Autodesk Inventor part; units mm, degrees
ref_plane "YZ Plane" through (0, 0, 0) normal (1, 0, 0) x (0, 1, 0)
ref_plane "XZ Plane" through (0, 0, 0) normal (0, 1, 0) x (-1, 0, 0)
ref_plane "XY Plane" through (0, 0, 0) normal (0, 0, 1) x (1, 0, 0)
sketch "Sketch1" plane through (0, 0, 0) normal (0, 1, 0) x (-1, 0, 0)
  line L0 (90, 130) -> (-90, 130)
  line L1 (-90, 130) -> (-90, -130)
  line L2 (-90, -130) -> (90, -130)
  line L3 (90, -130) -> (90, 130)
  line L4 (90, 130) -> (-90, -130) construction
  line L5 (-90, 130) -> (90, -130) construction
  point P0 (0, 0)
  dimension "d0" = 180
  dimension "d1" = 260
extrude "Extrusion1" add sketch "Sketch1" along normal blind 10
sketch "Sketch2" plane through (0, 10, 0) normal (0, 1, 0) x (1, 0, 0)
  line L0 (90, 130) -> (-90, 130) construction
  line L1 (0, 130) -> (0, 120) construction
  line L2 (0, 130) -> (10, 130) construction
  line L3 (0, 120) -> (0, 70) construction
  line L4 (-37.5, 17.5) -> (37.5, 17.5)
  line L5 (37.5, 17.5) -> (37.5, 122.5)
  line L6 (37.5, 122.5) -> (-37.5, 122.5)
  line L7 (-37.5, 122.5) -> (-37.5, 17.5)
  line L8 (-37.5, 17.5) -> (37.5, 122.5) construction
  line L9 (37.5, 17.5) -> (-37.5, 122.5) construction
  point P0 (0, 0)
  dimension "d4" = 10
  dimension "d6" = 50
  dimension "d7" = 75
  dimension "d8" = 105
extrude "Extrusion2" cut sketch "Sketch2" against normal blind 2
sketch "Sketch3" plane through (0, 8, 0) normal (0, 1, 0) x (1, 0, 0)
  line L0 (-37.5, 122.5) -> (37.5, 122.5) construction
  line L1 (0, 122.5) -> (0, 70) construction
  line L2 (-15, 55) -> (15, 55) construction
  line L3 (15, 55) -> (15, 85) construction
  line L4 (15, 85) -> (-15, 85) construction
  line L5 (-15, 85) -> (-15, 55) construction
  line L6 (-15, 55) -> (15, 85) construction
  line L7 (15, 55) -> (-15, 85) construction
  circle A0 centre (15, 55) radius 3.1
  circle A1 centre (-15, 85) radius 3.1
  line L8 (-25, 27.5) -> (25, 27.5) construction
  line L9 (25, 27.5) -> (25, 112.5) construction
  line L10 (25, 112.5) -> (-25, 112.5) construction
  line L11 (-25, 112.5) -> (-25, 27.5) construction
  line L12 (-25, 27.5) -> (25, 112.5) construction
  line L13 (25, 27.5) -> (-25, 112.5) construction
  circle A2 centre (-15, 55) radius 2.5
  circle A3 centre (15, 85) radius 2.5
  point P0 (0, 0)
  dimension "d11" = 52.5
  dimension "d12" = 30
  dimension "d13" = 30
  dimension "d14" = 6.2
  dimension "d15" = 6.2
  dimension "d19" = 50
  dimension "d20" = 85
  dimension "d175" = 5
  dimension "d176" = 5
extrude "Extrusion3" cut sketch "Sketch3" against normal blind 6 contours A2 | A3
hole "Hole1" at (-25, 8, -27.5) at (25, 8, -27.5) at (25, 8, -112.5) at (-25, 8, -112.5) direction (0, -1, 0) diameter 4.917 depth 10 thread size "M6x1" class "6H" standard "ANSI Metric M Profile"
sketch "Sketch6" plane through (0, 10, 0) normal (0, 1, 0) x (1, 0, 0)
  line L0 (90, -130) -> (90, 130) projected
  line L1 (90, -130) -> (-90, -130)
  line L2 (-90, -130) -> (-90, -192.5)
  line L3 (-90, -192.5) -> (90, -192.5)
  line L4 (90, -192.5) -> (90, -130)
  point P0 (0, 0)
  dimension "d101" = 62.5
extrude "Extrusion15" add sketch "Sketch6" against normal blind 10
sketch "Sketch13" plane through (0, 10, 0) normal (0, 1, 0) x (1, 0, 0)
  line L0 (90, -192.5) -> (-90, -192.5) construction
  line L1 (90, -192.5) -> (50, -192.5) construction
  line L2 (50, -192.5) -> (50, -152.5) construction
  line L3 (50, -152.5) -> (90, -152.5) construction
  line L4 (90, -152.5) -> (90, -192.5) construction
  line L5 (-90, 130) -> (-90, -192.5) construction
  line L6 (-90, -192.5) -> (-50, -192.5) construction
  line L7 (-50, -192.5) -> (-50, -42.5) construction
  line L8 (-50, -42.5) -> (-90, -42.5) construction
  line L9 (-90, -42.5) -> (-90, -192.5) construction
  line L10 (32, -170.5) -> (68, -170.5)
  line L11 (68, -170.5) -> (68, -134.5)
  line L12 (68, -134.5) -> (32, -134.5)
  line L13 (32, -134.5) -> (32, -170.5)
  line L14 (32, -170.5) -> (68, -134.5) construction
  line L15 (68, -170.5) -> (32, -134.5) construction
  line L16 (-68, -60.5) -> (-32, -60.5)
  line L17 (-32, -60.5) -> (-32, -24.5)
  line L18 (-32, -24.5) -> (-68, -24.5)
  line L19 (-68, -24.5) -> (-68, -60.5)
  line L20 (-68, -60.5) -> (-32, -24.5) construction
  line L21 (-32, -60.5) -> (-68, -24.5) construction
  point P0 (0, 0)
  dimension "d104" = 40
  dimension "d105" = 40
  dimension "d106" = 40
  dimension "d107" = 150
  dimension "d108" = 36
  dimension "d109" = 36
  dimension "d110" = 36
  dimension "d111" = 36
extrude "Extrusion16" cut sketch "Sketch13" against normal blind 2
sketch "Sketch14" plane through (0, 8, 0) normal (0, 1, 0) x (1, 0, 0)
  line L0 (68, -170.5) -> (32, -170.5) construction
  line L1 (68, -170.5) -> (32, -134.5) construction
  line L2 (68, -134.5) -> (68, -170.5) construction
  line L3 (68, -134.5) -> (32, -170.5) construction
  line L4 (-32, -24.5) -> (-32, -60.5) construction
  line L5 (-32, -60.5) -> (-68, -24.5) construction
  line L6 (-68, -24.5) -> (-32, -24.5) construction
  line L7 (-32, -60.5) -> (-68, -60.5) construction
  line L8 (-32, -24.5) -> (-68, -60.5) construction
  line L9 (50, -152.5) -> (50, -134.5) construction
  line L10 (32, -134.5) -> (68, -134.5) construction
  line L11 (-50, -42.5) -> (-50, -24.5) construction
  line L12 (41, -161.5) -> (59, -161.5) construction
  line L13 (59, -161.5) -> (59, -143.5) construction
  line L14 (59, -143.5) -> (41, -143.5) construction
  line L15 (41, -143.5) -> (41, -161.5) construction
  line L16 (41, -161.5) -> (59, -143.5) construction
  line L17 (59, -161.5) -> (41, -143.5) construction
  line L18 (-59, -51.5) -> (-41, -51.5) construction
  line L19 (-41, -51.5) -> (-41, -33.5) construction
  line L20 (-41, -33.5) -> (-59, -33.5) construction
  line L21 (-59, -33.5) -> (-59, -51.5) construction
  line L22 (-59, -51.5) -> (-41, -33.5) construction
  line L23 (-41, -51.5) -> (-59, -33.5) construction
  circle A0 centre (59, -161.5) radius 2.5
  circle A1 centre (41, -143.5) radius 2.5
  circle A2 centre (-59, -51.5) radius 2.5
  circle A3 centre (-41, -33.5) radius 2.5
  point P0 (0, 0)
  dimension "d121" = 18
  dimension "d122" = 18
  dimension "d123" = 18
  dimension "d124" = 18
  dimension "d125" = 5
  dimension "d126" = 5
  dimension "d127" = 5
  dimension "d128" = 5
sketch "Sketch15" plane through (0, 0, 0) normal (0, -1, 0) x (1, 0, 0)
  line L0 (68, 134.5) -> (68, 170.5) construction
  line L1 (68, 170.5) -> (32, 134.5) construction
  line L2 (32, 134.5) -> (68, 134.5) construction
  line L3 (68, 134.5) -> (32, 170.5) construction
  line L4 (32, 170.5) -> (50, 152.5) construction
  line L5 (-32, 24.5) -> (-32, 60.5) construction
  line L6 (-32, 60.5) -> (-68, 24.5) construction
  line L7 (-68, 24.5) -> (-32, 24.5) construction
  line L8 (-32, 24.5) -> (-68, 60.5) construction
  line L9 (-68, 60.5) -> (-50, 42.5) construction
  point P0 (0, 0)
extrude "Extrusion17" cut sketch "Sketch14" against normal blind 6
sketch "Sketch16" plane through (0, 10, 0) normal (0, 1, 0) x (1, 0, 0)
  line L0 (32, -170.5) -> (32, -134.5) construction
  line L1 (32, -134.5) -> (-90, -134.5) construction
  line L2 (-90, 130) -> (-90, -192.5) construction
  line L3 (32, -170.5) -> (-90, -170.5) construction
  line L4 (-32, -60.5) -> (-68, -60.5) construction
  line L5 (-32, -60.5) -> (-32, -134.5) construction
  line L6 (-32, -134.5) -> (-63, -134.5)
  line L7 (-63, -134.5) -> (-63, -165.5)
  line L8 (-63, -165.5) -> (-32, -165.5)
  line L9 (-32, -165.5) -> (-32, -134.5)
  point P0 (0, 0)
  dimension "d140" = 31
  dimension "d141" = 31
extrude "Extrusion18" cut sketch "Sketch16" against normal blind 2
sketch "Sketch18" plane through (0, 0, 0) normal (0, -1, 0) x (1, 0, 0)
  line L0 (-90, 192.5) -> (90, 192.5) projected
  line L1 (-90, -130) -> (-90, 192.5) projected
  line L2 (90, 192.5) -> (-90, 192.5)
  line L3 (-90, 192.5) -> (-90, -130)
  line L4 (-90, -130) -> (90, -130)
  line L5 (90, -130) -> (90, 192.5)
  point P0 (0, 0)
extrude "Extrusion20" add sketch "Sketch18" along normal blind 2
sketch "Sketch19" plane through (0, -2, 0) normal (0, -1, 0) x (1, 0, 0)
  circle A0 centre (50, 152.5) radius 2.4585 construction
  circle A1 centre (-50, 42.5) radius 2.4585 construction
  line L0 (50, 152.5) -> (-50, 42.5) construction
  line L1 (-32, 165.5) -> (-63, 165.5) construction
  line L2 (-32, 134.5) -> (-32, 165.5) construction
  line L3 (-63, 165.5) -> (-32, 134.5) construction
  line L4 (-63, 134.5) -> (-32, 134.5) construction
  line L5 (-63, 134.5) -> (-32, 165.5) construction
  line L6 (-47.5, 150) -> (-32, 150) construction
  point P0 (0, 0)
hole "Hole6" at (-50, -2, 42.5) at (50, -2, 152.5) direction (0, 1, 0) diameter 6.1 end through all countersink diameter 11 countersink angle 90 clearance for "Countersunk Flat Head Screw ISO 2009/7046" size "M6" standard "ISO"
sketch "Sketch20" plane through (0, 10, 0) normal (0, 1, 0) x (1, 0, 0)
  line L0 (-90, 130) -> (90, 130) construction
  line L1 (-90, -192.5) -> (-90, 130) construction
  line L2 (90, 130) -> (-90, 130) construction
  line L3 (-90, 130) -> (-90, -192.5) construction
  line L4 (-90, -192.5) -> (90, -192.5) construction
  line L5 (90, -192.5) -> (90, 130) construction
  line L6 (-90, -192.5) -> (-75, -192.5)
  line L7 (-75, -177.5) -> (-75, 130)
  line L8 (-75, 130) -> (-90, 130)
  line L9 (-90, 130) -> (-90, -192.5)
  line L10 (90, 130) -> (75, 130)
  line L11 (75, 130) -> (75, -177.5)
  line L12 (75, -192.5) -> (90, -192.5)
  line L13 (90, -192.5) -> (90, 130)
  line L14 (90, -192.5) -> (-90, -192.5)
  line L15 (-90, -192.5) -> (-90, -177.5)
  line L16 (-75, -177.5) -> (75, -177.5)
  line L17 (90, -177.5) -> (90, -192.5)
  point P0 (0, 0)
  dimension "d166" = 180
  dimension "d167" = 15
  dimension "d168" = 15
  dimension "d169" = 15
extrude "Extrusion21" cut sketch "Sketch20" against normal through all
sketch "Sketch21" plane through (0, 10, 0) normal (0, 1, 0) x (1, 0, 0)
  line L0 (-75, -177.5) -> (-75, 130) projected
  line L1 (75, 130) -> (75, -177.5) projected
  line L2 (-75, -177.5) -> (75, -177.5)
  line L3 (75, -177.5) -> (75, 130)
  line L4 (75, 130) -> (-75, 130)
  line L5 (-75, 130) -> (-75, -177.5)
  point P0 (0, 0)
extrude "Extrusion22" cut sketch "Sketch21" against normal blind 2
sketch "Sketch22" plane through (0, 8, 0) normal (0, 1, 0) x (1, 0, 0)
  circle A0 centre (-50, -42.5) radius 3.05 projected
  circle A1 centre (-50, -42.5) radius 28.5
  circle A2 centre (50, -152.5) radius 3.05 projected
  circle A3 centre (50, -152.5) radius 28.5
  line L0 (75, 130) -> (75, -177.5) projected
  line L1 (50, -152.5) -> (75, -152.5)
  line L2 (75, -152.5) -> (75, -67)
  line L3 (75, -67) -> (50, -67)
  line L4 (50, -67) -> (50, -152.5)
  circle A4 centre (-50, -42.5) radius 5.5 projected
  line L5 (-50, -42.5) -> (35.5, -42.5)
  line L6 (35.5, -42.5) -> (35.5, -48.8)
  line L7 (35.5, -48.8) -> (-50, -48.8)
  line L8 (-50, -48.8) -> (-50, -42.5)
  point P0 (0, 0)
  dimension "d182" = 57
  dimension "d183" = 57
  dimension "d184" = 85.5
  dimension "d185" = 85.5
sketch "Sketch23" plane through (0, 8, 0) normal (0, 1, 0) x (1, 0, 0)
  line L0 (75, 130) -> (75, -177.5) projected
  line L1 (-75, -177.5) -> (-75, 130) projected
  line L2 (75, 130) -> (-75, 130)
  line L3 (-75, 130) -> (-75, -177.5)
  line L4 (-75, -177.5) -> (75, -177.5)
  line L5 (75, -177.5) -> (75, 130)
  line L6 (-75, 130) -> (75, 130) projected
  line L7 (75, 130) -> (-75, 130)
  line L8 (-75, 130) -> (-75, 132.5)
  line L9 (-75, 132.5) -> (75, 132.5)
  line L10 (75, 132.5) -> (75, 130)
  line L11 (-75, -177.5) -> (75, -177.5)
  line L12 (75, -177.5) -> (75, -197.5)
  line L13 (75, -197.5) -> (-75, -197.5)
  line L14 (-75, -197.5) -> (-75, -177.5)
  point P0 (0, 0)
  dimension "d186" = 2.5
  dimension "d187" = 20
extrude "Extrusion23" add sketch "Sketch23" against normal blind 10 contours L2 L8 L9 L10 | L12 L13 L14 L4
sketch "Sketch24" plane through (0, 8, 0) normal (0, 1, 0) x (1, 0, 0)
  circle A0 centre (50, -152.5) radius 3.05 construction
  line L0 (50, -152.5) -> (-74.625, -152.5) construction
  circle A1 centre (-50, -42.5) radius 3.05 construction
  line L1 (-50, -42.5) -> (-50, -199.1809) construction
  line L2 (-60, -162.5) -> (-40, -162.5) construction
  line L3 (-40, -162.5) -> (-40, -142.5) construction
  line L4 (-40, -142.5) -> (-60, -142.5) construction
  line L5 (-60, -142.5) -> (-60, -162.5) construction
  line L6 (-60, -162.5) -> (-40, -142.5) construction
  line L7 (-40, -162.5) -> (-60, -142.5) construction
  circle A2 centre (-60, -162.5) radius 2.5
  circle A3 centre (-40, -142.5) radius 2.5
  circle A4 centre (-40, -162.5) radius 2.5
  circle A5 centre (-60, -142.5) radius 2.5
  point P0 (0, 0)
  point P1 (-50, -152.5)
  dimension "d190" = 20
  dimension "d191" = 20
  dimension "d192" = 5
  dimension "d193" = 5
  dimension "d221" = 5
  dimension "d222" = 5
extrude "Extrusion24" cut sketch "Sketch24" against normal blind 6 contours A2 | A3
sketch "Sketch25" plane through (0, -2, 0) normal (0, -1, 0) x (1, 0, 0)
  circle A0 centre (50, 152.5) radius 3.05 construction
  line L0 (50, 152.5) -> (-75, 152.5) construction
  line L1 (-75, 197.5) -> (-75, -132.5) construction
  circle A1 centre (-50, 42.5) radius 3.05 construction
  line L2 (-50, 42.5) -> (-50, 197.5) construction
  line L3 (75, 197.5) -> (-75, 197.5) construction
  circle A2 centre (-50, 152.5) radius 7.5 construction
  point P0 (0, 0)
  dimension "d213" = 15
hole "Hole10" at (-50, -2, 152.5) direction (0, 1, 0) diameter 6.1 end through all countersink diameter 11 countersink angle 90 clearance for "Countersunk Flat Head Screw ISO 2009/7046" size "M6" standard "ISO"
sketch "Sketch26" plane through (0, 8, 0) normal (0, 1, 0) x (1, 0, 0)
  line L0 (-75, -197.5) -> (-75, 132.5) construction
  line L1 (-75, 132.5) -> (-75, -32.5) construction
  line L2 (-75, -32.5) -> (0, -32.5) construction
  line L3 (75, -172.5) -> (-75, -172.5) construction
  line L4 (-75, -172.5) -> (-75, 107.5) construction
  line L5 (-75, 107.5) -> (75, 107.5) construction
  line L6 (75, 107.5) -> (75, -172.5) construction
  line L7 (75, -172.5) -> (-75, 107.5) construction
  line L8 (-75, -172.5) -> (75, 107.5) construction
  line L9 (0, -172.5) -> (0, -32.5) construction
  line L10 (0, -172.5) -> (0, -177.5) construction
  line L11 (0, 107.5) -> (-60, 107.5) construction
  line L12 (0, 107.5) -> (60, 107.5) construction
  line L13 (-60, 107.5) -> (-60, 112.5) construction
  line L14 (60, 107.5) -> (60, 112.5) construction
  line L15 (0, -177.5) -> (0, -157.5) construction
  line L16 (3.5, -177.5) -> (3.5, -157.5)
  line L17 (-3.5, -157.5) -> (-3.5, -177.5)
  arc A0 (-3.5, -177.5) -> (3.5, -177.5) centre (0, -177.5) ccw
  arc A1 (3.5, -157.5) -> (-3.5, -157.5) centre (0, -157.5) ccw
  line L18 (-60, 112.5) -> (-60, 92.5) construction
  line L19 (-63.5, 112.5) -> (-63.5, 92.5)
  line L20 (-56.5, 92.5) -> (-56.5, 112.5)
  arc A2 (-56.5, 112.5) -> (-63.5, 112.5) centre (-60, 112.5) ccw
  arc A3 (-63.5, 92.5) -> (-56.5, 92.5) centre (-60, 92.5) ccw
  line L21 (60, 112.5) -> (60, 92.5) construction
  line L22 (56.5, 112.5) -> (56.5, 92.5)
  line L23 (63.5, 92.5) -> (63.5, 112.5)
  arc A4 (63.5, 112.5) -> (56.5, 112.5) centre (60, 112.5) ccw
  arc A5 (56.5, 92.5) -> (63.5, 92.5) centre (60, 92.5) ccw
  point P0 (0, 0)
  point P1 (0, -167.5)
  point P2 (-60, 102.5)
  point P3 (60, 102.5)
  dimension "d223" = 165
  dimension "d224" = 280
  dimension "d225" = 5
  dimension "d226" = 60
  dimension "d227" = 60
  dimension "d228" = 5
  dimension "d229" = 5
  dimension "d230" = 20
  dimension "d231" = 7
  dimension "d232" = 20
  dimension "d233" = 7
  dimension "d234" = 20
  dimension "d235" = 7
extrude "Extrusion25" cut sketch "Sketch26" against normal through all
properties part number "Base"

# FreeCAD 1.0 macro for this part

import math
import FreeCAD as App
import Part
import Sketcher
Q = App.Units.Quantity

doc = App.newDocument("Part")
body = doc.addObject("PartDesign::Body", "Body")

sketch1 = body.newObject("Sketcher::SketchObject", "Sketch")
sketch1.AttachmentSupport = (doc.getObject("XZ_Plane"), [""])
sketch1.MapMode = "FlatFace"
sketch1.addGeometry([
    Part.LineSegment(App.Vector(-90, -130, 0), App.Vector(-90, 130, 0)),
    Part.LineSegment(App.Vector(-90, 130, 0), App.Vector(90, 130, 0)),
    Part.LineSegment(App.Vector(90, 130, 0), App.Vector(90, -130, 0)),
    Part.LineSegment(App.Vector(90, -130, 0), App.Vector(-90, -130, 0)),
], False)
sketch1.addConstraint([
    Sketcher.Constraint("Coincident", 0, 2, 1, 1),
    Sketcher.Constraint("Coincident", 1, 2, 2, 1),
    Sketcher.Constraint("Coincident", 2, 2, 3, 1),
    Sketcher.Constraint("Coincident", 3, 2, 0, 1),
    Sketcher.Constraint("Vertical", 0),
    Sketcher.Constraint("Horizontal", 1),
    Sketcher.Constraint("Vertical", 2),
    Sketcher.Constraint("Horizontal", 3),
    Sketcher.Constraint("Symmetric", 0, 2, 2, 2, -1, 1),
    Sketcher.Constraint("DistanceX", 1, 1, 1, 2, Q("180 mm")),
    Sketcher.Constraint("DistanceY", 0, 1, 0, 2, Q("260 mm")),
])
pad1 = body.newObject("PartDesign::Pad", "Pad")
pad1.Profile = sketch1
pad1.Length = 10
pad1.Reversed = True

sketch2 = body.newObject("Sketcher::SketchObject", "Sketch001")
sketch2.AttachmentSupport = (doc.getObject("XZ_Plane"), [""])
sketch2.MapMode = "FlatFace"
sketch2.AttachmentOffset = App.Placement(App.Vector(0, 0, -10), App.Rotation())
sketch2.addGeometry([
    Part.LineSegment(App.Vector(-37.5, -122.5, 0), App.Vector(-37.5, -17.5, 0)),
    Part.LineSegment(App.Vector(-37.5, -17.5, 0), App.Vector(37.5, -17.5, 0)),
    Part.LineSegment(App.Vector(37.5, -17.5, 0), App.Vector(37.5, -122.5, 0)),
    Part.LineSegment(App.Vector(37.5, -122.5, 0), App.Vector(-37.5, -122.5, 0)),
], False)
sketch2.addConstraint([
    Sketcher.Constraint("Coincident", 0, 2, 1, 1),
    Sketcher.Constraint("Coincident", 1, 2, 2, 1),
    Sketcher.Constraint("Coincident", 2, 2, 3, 1),
    Sketcher.Constraint("Coincident", 3, 2, 0, 1),
    Sketcher.Constraint("Vertical", 0),
    Sketcher.Constraint("Horizontal", 1),
    Sketcher.Constraint("Vertical", 2),
    Sketcher.Constraint("Horizontal", 3),
    Sketcher.Constraint("DistanceX", 1, 1, 1, 2, Q("75 mm")),
    Sketcher.Constraint("DistanceY", 0, 1, 0, 2, Q("105 mm")),
    Sketcher.Constraint("DistanceX", 0, 2, -1, 1, Q("37.5 mm")),
    Sketcher.Constraint("DistanceY", 0, 2, -1, 1, Q("17.5 mm")),
])
pocket1 = body.newObject("PartDesign::Pocket", "Pocket")
pocket1.Profile = sketch2
pocket1.Length = 2
pocket1.Reversed = True

sketch3 = body.newObject("Sketcher::SketchObject", "Sketch002")
sketch3.AttachmentSupport = (doc.getObject("XZ_Plane"), [""])
sketch3.MapMode = "FlatFace"
sketch3.AttachmentOffset = App.Placement(App.Vector(0, 0, -8), App.Rotation())
sketch3.addGeometry([
    Part.Circle(App.Vector(-15, -55, 0), App.Vector(0, 0, 1), 2.5),
    Part.Circle(App.Vector(15, -85, 0), App.Vector(0, 0, 1), 2.5),
], False)
sketch3.addConstraint([
    Sketcher.Constraint("Equal", 0, 1),
    Sketcher.Constraint("Diameter", 0, Q("5 mm")),
    Sketcher.Constraint("DistanceY", 1, 3, -1, 1, Q("85 mm")),
    Sketcher.Constraint("DistanceX", 0, 3, 1, 3, Q("30 mm")),
    Sketcher.Constraint("DistanceY", 1, 3, 0, 3, Q("30 mm")),
    Sketcher.Constraint("DistanceX", 0, 3, -1, 1, Q("15 mm")),
])
pocket2 = body.newObject("PartDesign::Pocket", "Pocket001")
pocket2.Profile = sketch3
pocket2.Length = 6
pocket2.Reversed = True

sketch4 = body.newObject("Sketcher::SketchObject", "Sketch003")
sketch4.AttachmentSupport = (doc.getObject("XZ_Plane"), [""])
sketch4.MapMode = "FlatFace"
sketch4.AttachmentOffset = App.Placement(App.Vector(0, 0, -8), App.Rotation())
sketch4.addGeometry([
    Part.Circle(App.Vector(-25, -27.5, 0), App.Vector(0, 0, 1), 2.4585),
    Part.Circle(App.Vector(25, -27.5, 0), App.Vector(0, 0, 1), 2.4585),
    Part.Circle(App.Vector(25, -112.5, 0), App.Vector(0, 0, 1), 2.4585),
    Part.Circle(App.Vector(-25, -112.5, 0), App.Vector(0, 0, 1), 2.4585),
], False)
sketch4.addConstraint([
    Sketcher.Constraint("Equal", 0, 1),
    Sketcher.Constraint("Equal", 1, 2),
    Sketcher.Constraint("Equal", 2, 3),
    Sketcher.Constraint("Symmetric", 0, 3, 1, 3, -2),
    Sketcher.Constraint("Symmetric", 2, 3, 3, 3, -2),
    Sketcher.Constraint("Vertical", 1, 3, 2, 3),
    Sketcher.Constraint("Diameter", 0, Q("4.917 mm")),
    Sketcher.Constraint("DistanceX", 0, 3, -1, 1, Q("25 mm")),
    Sketcher.Constraint("DistanceY", 2, 3, 1, 3, Q("85 mm")),
    Sketcher.Constraint("DistanceY", 0, 3, -1, 1, Q("27.5 mm")),
])
doc.recompute()
hole = body.newObject("PartDesign::Hole", "Hole")
hole.Profile = sketch4
hole.ThreadType = "None"
hole.Diameter = 4.917
hole.DepthType = "Dimension"
hole.Depth = 10
hole.DrillPoint = "Flat"
hole.Reversed = True

sketch5 = body.newObject("Sketcher::SketchObject", "Sketch004")
sketch5.AttachmentSupport = (doc.getObject("XZ_Plane"), [""])
sketch5.MapMode = "FlatFace"
sketch5.AttachmentOffset = App.Placement(App.Vector(0, 0, -10), App.Rotation())
sketch5.addGeometry([
    Part.LineSegment(App.Vector(90, 192.5, 0), App.Vector(90, 130, 0)),
    Part.LineSegment(App.Vector(90, 130, 0), App.Vector(-90, 130, 0)),
    Part.LineSegment(App.Vector(-90, 130, 0), App.Vector(-90, 192.5, 0)),
    Part.LineSegment(App.Vector(-90, 192.5, 0), App.Vector(90, 192.5, 0)),
], False)
sketch5.addConstraint([
    Sketcher.Constraint("Coincident", 0, 2, 1, 1),
    Sketcher.Constraint("Coincident", 1, 2, 2, 1),
    Sketcher.Constraint("Coincident", 2, 2, 3, 1),
    Sketcher.Constraint("Coincident", 3, 2, 0, 1),
    Sketcher.Constraint("Vertical", 0),
    Sketcher.Constraint("Horizontal", 1),
    Sketcher.Constraint("Vertical", 2),
    Sketcher.Constraint("Horizontal", 3),
    Sketcher.Constraint("DistanceY", 0, 2, 0, 1, Q("62.5 mm")),
    Sketcher.Constraint("DistanceX", 1, 2, 1, 1, Q("180 mm")),
    Sketcher.Constraint("DistanceX", -1, 1, 0, 2, Q("90 mm")),
    Sketcher.Constraint("DistanceY", -1, 1, 0, 2, Q("130 mm")),
])
pad2 = body.newObject("PartDesign::Pad", "Pad001")
pad2.Profile = sketch5
pad2.Length = 10

sketch6 = body.newObject("Sketcher::SketchObject", "Sketch005")
sketch6.AttachmentSupport = (doc.getObject("XZ_Plane"), [""])
sketch6.MapMode = "FlatFace"
sketch6.AttachmentOffset = App.Placement(App.Vector(0, 0, -10), App.Rotation())
sketch6.addGeometry([
    Part.LineSegment(App.Vector(32, 134.5, 0), App.Vector(32, 170.5, 0)),
    Part.LineSegment(App.Vector(32, 170.5, 0), App.Vector(68, 170.5, 0)),
    Part.LineSegment(App.Vector(68, 170.5, 0), App.Vector(68, 134.5, 0)),
    Part.LineSegment(App.Vector(68, 134.5, 0), App.Vector(32, 134.5, 0)),
    Part.LineSegment(App.Vector(-68, 24.5, 0), App.Vector(-68, 60.5, 0)),
    Part.LineSegment(App.Vector(-68, 60.5, 0), App.Vector(-32, 60.5, 0)),
    Part.LineSegment(App.Vector(-32, 60.5, 0), App.Vector(-32, 24.5, 0)),
    Part.LineSegment(App.Vector(-32, 24.5, 0), App.Vector(-68, 24.5, 0)),
], False)
sketch6.addConstraint([
    Sketcher.Constraint("Coincident", 0, 2, 1, 1),
    Sketcher.Constraint("Coincident", 1, 2, 2, 1),
    Sketcher.Constraint("Coincident", 2, 2, 3, 1),
    Sketcher.Constraint("Coincident", 3, 2, 0, 1),
    Sketcher.Constraint("Coincident", 4, 2, 5, 1),
    Sketcher.Constraint("Coincident", 5, 2, 6, 1),
    Sketcher.Constraint("Coincident", 6, 2, 7, 1),
    Sketcher.Constraint("Coincident", 7, 2, 4, 1),
    Sketcher.Constraint("Vertical", 0),
    Sketcher.Constraint("Horizontal", 1),
    Sketcher.Constraint("Vertical", 2),
    Sketcher.Constraint("Horizontal", 3),
    Sketcher.Constraint("Vertical", 4),
    Sketcher.Constraint("Horizontal", 5),
    Sketcher.Constraint("Vertical", 6),
    Sketcher.Constraint("Horizontal", 7),
    Sketcher.Constraint("Equal", 3, 5),
    Sketcher.Constraint("Equal", 7, 0),
    Sketcher.Constraint("Equal", 2, 4),
    Sketcher.Constraint("DistanceX", 1, 1, 1, 2, Q("36 mm")),
    Sketcher.Constraint("DistanceX", -1, 1, 0, 2, Q("32 mm")),
    Sketcher.Constraint("DistanceX", 4, 2, -1, 1, Q("68 mm")),
    Sketcher.Constraint("DistanceY", 4, 2, 3, 2, Q("74 mm")),
    Sketcher.Constraint("DistanceY", -1, 1, 0, 2, Q("170.5 mm")),
])
pocket3 = body.newObject("PartDesign::Pocket", "Pocket002")
pocket3.Profile = sketch6
pocket3.Length = 2
pocket3.Reversed = True

sketch7 = body.newObject("Sketcher::SketchObject", "Sketch006")
sketch7.AttachmentSupport = (doc.getObject("XZ_Plane"), [""])
sketch7.MapMode = "FlatFace"
sketch7.AttachmentOffset = App.Placement(App.Vector(0, 0, -8), App.Rotation())
sketch7.addGeometry([
    Part.Circle(App.Vector(59, 161.5, 0), App.Vector(0, 0, 1), 2.5),
    Part.Circle(App.Vector(41, 143.5, 0), App.Vector(0, 0, 1), 2.5),
    Part.Circle(App.Vector(-59, 51.5, 0), App.Vector(0, 0, 1), 2.5),
    Part.Circle(App.Vector(-41, 33.5, 0), App.Vector(0, 0, 1), 2.5),
], False)
sketch7.addConstraint([
    Sketcher.Constraint("Equal", 0, 1),
    Sketcher.Constraint("Equal", 1, 2),
    Sketcher.Constraint("Equal", 2, 3),
    Sketcher.Constraint("Diameter", 0, Q("5 mm")),
    Sketcher.Constraint("DistanceX", 1, 3, 0, 3, Q("18 mm")),
    Sketcher.Constraint("DistanceY", 1, 3, 0, 3, Q("18 mm")),
    Sketcher.Constraint("DistanceX", 2, 3, 3, 3, Q("18 mm")),
    Sketcher.Constraint("DistanceY", 3, 3, 2, 3, Q("18 mm")),
    Sketcher.Constraint("DistanceX", -1, 1, 0, 3, Q("59 mm")),
    Sketcher.Constraint("DistanceX", 2, 3, -1, 1, Q("59 mm")),
    Sketcher.Constraint("DistanceY", 2, 3, 1, 3, Q("92 mm")),
    Sketcher.Constraint("DistanceY", -1, 1, 0, 3, Q("161.5 mm")),
])
pocket4 = body.newObject("PartDesign::Pocket", "Pocket003")
pocket4.Profile = sketch7
pocket4.Length = 6
pocket4.Reversed = True

sketch8 = body.newObject("Sketcher::SketchObject", "Sketch007")
sketch8.AttachmentSupport = (doc.getObject("XZ_Plane"), [""])
sketch8.MapMode = "FlatFace"
sketch8.AttachmentOffset = App.Placement(App.Vector(0, 0, -10), App.Rotation())
sketch8.addGeometry([
    Part.LineSegment(App.Vector(-32, 165.5, 0), App.Vector(-32, 134.5, 0)),
    Part.LineSegment(App.Vector(-32, 134.5, 0), App.Vector(-63, 134.5, 0)),
    Part.LineSegment(App.Vector(-63, 134.5, 0), App.Vector(-63, 165.5, 0)),
    Part.LineSegment(App.Vector(-63, 165.5, 0), App.Vector(-32, 165.5, 0)),
], False)
sketch8.addConstraint([
    Sketcher.Constraint("Coincident", 0, 2, 1, 1),
    Sketcher.Constraint("Coincident", 1, 2, 2, 1),
    Sketcher.Constraint("Coincident", 2, 2, 3, 1),
    Sketcher.Constraint("Coincident", 3, 2, 0, 1),
    Sketcher.Constraint("Vertical", 0),
    Sketcher.Constraint("Horizontal", 1),
    Sketcher.Constraint("Vertical", 2),
    Sketcher.Constraint("Horizontal", 3),
    Sketcher.Constraint("Equal", 3, 0),
    Sketcher.Constraint("DistanceX", 1, 2, 1, 1, Q("31 mm")),
    Sketcher.Constraint("DistanceX", 0, 2, -1, 1, Q("32 mm")),
    Sketcher.Constraint("DistanceY", -1, 1, 0, 2, Q("134.5 mm")),
])
pocket5 = body.newObject("PartDesign::Pocket", "Pocket004")
pocket5.Profile = sketch8
pocket5.Length = 2
pocket5.Reversed = True

sketch9 = body.newObject("Sketcher::SketchObject", "Sketch008")
sketch9.AttachmentSupport = (doc.getObject("XZ_Plane"), [""])
sketch9.MapMode = "FlatFace"
sketch9.addGeometry([
    Part.LineSegment(App.Vector(90, 192.5, 0), App.Vector(-90, 192.5, 0)),
    Part.LineSegment(App.Vector(-90, 192.5, 0), App.Vector(-90, -130, 0)),
    Part.LineSegment(App.Vector(-90, -130, 0), App.Vector(90, -130, 0)),
    Part.LineSegment(App.Vector(90, -130, 0), App.Vector(90, 192.5, 0)),
], False)
sketch9.addConstraint([
    Sketcher.Constraint("Coincident", 0, 2, 1, 1),
    Sketcher.Constraint("Coincident", 1, 2, 2, 1),
    Sketcher.Constraint("Coincident", 2, 2, 3, 1),
    Sketcher.Constraint("Coincident", 3, 2, 0, 1),
    Sketcher.Constraint("Horizontal", 0),
    Sketcher.Constraint("Vertical", 1),
    Sketcher.Constraint("Horizontal", 2),
    Sketcher.Constraint("Vertical", 3),
    Sketcher.Constraint("DistanceX", 0, 2, 0, 1, Q("180 mm")),
    Sketcher.Constraint("DistanceY", 1, 2, 1, 1, Q("322.5 mm")),
    Sketcher.Constraint("DistanceX", 0, 2, -1, 1, Q("90 mm")),
    Sketcher.Constraint("DistanceY", 1, 2, -1, 1, Q("130 mm")),
])
pad3 = body.newObject("PartDesign::Pad", "Pad002")
pad3.Profile = sketch9
pad3.Length = 2

sketch10 = body.newObject("Sketcher::SketchObject", "Sketch009")
sketch10.AttachmentSupport = (doc.getObject("XZ_Plane"), [""])
sketch10.MapMode = "FlatFace"
sketch10.AttachmentOffset = App.Placement(App.Vector(0, 0, 2), App.Rotation())
sketch10.addGeometry([
    Part.Circle(App.Vector(-50, 42.5, 0), App.Vector(0, 0, 1), 3.05),
    Part.Circle(App.Vector(50, 152.5, 0), App.Vector(0, 0, 1), 3.05),
], False)
sketch10.addConstraint([
    Sketcher.Constraint("Equal", 0, 1),
    Sketcher.Constraint("Diameter", 0, Q("6.1 mm")),
    Sketcher.Constraint("DistanceX", 0, 3, -1, 1, Q("50 mm")),
    Sketcher.Constraint("DistanceX", -1, 1, 1, 3, Q("50 mm")),
    Sketcher.Constraint("DistanceY", 0, 3, 1, 3, Q("110 mm")),
    Sketcher.Constraint("DistanceY", -1, 1, 0, 3, Q("42.5 mm")),
])
doc.recompute()
hole2 = body.newObject("PartDesign::Hole", "Hole001")
hole2.Profile = sketch10
hole2.ThreadType = "None"
hole2.Diameter = 6.1
hole2.DepthType = "ThroughAll"
hole2.HoleCutType = "Countersink"
hole2.HoleCutDiameter = 11
hole2.HoleCutCountersinkAngle = 90

sketch11 = body.newObject("Sketcher::SketchObject", "Sketch010")
sketch11.AttachmentSupport = (doc.getObject("XZ_Plane"), [""])
sketch11.MapMode = "FlatFace"
sketch11.AttachmentOffset = App.Placement(App.Vector(0, 0, -10), App.Rotation())
sketch11.addGeometry([
    Part.LineSegment(App.Vector(-90, -130, 0), App.Vector(-90, 192.5, 0)),
    Part.LineSegment(App.Vector(-90, 192.5, 0), App.Vector(90, 192.5, 0)),
    Part.LineSegment(App.Vector(90, 192.5, 0), App.Vector(90, -130, 0)),
    Part.LineSegment(App.Vector(90, -130, 0), App.Vector(75, -130, 0)),
    Part.LineSegment(App.Vector(75, -130, 0), App.Vector(75, 177.5, 0)),
    Part.LineSegment(App.Vector(75, 177.5, 0), App.Vector(-75, 177.5, 0)),
    Part.LineSegment(App.Vector(-75, 177.5, 0), App.Vector(-75, -130, 0)),
    Part.LineSegment(App.Vector(-75, -130, 0), App.Vector(-90, -130, 0)),
], False)
sketch11.addConstraint([
    Sketcher.Constraint("Coincident", 0, 2, 1, 1),
    Sketcher.Constraint("Coincident", 1, 2, 2, 1),
    Sketcher.Constraint("Coincident", 2, 2, 3, 1),
    Sketcher.Constraint("Coincident", 3, 2, 4, 1),
    Sketcher.Constraint("Coincident", 4, 2, 5, 1),
    Sketcher.Constraint("Coincident", 5, 2, 6, 1),
    Sketcher.Constraint("Coincident", 6, 2, 7, 1),
    Sketcher.Constraint("Coincident", 7, 2, 0, 1),
    Sketcher.Constraint("Vertical", 0),
    Sketcher.Constraint("Horizontal", 1),
    Sketcher.Constraint("Vertical", 2),
    Sketcher.Constraint("Horizontal", 3),
    Sketcher.Constraint("Vertical", 4),
    Sketcher.Constraint("Horizontal", 5),
    Sketcher.Constraint("Vertical", 6),
    Sketcher.Constraint("Horizontal", 7),
    Sketcher.Constraint("Symmetric", 3, 2, 6, 2, -2),
    Sketcher.Constraint("Equal", 3, 7),
    Sketcher.Constraint("DistanceX", 1, 1, 1, 2, Q("180 mm")),
    Sketcher.Constraint("DistanceX", 3, 2, 3, 1, Q("15 mm")),
    Sketcher.Constraint("DistanceY", 4, 2, 1, 2, Q("15 mm")),
    Sketcher.Constraint("DistanceY", 0, 1, 0, 2, Q("322.5 mm")),
    Sketcher.Constraint("DistanceY", 2, 2, -1, 1, Q("130 mm")),
])
pocket6 = body.newObject("PartDesign::Pocket", "Pocket005")
pocket6.Profile = sketch11
pocket6.Type = "ThroughAll"
pocket6.Reversed = True

sketch12 = body.newObject("Sketcher::SketchObject", "Sketch011")
sketch12.AttachmentSupport = (doc.getObject("XZ_Plane"), [""])
sketch12.MapMode = "FlatFace"
sketch12.AttachmentOffset = App.Placement(App.Vector(0, 0, -10), App.Rotation())
sketch12.addGeometry([
    Part.LineSegment(App.Vector(-75, -130, 0), App.Vector(-75, 177.5, 0)),
    Part.LineSegment(App.Vector(-75, 177.5, 0), App.Vector(75, 177.5, 0)),
    Part.LineSegment(App.Vector(75, 177.5, 0), App.Vector(75, -130, 0)),
    Part.LineSegment(App.Vector(75, -130, 0), App.Vector(-75, -130, 0)),
], False)
sketch12.addConstraint([
    Sketcher.Constraint("Coincident", 0, 2, 1, 1),
    Sketcher.Constraint("Coincident", 1, 2, 2, 1),
    Sketcher.Constraint("Coincident", 2, 2, 3, 1),
    Sketcher.Constraint("Coincident", 3, 2, 0, 1),
    Sketcher.Constraint("Vertical", 0),
    Sketcher.Constraint("Horizontal", 1),
    Sketcher.Constraint("Vertical", 2),
    Sketcher.Constraint("Horizontal", 3),
    Sketcher.Constraint("DistanceX", 1, 1, 1, 2, Q("150 mm")),
    Sketcher.Constraint("DistanceY", 0, 1, 0, 2, Q("307.5 mm")),
    Sketcher.Constraint("DistanceX", 0, 2, -1, 1, Q("75 mm")),
    Sketcher.Constraint("DistanceY", 2, 2, -1, 1, Q("130 mm")),
])
pocket7 = body.newObject("PartDesign::Pocket", "Pocket006")
pocket7.Profile = sketch12
pocket7.Length = 2
pocket7.Reversed = True

sketch13 = body.newObject("Sketcher::SketchObject", "Sketch012")
sketch13.AttachmentSupport = (doc.getObject("XZ_Plane"), [""])
sketch13.MapMode = "FlatFace"
sketch13.AttachmentOffset = App.Placement(App.Vector(0, 0, -8), App.Rotation())
sketch13.addGeometry([
    Part.LineSegment(App.Vector(-75, -130, 0), App.Vector(75, -130, 0)),
    Part.LineSegment(App.Vector(75, -130, 0), App.Vector(75, -132.5, 0)),
    Part.LineSegment(App.Vector(75, -132.5, 0), App.Vector(-75, -132.5, 0)),
    Part.LineSegment(App.Vector(-75, -132.5, 0), App.Vector(-75, -130, 0)),
    Part.LineSegment(App.Vector(75, 197.5, 0), App.Vector(75, 177.5, 0)),
    Part.LineSegment(App.Vector(75, 177.5, 0), App.Vector(-75, 177.5, 0)),
    Part.LineSegment(App.Vector(-75, 177.5, 0), App.Vector(-75, 197.5, 0)),
    Part.LineSegment(App.Vector(-75, 197.5, 0), App.Vector(75, 197.5, 0)),
], False)
sketch13.addConstraint([
    Sketcher.Constraint("Coincident", 0, 2, 1, 1),
    Sketcher.Constraint("Coincident", 1, 2, 2, 1),
    Sketcher.Constraint("Coincident", 2, 2, 3, 1),
    Sketcher.Constraint("Coincident", 3, 2, 0, 1),
    Sketcher.Constraint("Coincident", 4, 2, 5, 1),
    Sketcher.Constraint("Coincident", 5, 2, 6, 1),
    Sketcher.Constraint("Coincident", 6, 2, 7, 1),
    Sketcher.Constraint("Coincident", 7, 2, 4, 1),
    Sketcher.Constraint("Horizontal", 0),
    Sketcher.Constraint("Vertical", 1),
    Sketcher.Constraint("Horizontal", 2),
    Sketcher.Constraint("Vertical", 3),
    Sketcher.Constraint("Vertical", 4),
    Sketcher.Constraint("Horizontal", 5),
    Sketcher.Constraint("Vertical", 6),
    Sketcher.Constraint("Horizontal", 7),
    Sketcher.Constraint("Vertical", 1, 2, 4, 2),
    Sketcher.Constraint("Vertical", 3, 2, 5, 2),
    Sketcher.Constraint("DistanceY", 4, 2, 4, 1, Q("20 mm")),
    Sketcher.Constraint("DistanceY", 1, 2, 1, 1, Q("2.5 mm")),
    Sketcher.Constraint("DistanceX", 0, 1, 0, 2, Q("150 mm")),
    Sketcher.Constraint("DistanceX", -1, 1, 0, 2, Q("75 mm")),
    Sketcher.Constraint("DistanceY", 0, 2, -1, 1, Q("130 mm")),
    Sketcher.Constraint("DistanceY", 1, 2, 4, 2, Q("310 mm")),
])
pad4 = body.newObject("PartDesign::Pad", "Pad003")
pad4.Profile = sketch13
pad4.Length = 10

sketch14 = body.newObject("Sketcher::SketchObject", "Sketch013")
sketch14.AttachmentSupport = (doc.getObject("XZ_Plane"), [""])
sketch14.MapMode = "FlatFace"
sketch14.AttachmentOffset = App.Placement(App.Vector(0, 0, -8), App.Rotation())
sketch14.addGeometry([
    Part.Circle(App.Vector(-60, 162.5, 0), App.Vector(0, 0, 1), 2.5),
    Part.Circle(App.Vector(-40, 142.5, 0), App.Vector(0, 0, 1), 2.5),
], False)
sketch14.addConstraint([
    Sketcher.Constraint("Equal", 0, 1),
    Sketcher.Constraint("Diameter", 0, Q("5 mm")),
    Sketcher.Constraint("DistanceX", 0, 3, 1, 3, Q("20 mm")),
    Sketcher.Constraint("DistanceY", 1, 3, 0, 3, Q("20 mm")),
    Sketcher.Constraint("DistanceX", 0, 3, -1, 1, Q("60 mm")),
    Sketcher.Constraint("DistanceY", -1, 1, 0, 3, Q("162.5 mm")),
])
pocket8 = body.newObject("PartDesign::Pocket", "Pocket007")
pocket8.Profile = sketch14
pocket8.Length = 6
pocket8.Reversed = True

sketch15 = body.newObject("Sketcher::SketchObject", "Sketch014")
sketch15.AttachmentSupport = (doc.getObject("XZ_Plane"), [""])
sketch15.MapMode = "FlatFace"
sketch15.AttachmentOffset = App.Placement(App.Vector(0, 0, 2), App.Rotation())
sketch15.addGeometry(Part.Circle(App.Vector(-50, 152.5, 0), App.Vector(0, 0, 1), 3.05), False)
sketch15.addConstraint([
    Sketcher.Constraint("Diameter", 0, Q("6.1 mm")),
    Sketcher.Constraint("DistanceX", 0, 3, -1, 1, Q("50 mm")),
    Sketcher.Constraint("DistanceY", -1, 1, 0, 3, Q("152.5 mm")),
])
doc.recompute()
hole3 = body.newObject("PartDesign::Hole", "Hole002")
hole3.Profile = sketch15
hole3.ThreadType = "None"
hole3.Diameter = 6.1
hole3.DepthType = "ThroughAll"
hole3.HoleCutType = "Countersink"
hole3.HoleCutDiameter = 11
hole3.HoleCutCountersinkAngle = 90

sketch16 = body.newObject("Sketcher::SketchObject", "Sketch015")
sketch16.AttachmentSupport = (doc.getObject("XZ_Plane"), [""])
sketch16.MapMode = "FlatFace"
sketch16.AttachmentOffset = App.Placement(App.Vector(0, 0, -8), App.Rotation())
sketch16.addGeometry([
    Part.ArcOfCircle(Part.Circle(App.Vector(0, 177.5, 0), App.Vector(0, 0, 1), 3.5), math.radians(0), math.radians(180)),
    Part.LineSegment(App.Vector(3.5, 177.5, 0), App.Vector(3.5, 157.5, 0)),
    Part.ArcOfCircle(Part.Circle(App.Vector(0, 157.5, 0), App.Vector(0, 0, 1), 3.5), math.radians(180), math.radians(360)),
    Part.LineSegment(App.Vector(-3.5, 157.5, 0), App.Vector(-3.5, 177.5, 0)),
    Part.ArcOfCircle(Part.Circle(App.Vector(-60, -112.5, 0), App.Vector(0, 0, 1), 3.5), math.radians(180), math.radians(360)),
    Part.LineSegment(App.Vector(-63.5, -112.5, 0), App.Vector(-63.5, -92.5, 0)),
    Part.ArcOfCircle(Part.Circle(App.Vector(-60, -92.5, 0), App.Vector(0, 0, 1), 3.5), math.radians(0), math.radians(180)),
    Part.LineSegment(App.Vector(-56.5, -92.5, 0), App.Vector(-56.5, -112.5, 0)),
    Part.ArcOfCircle(Part.Circle(App.Vector(60, -112.5, 0), App.Vector(0, 0, 1), 3.5), math.radians(180), math.radians(360)),
    Part.LineSegment(App.Vector(56.5, -112.5, 0), App.Vector(56.5, -92.5, 0)),
    Part.ArcOfCircle(Part.Circle(App.Vector(60, -92.5, 0), App.Vector(0, 0, 1), 3.5), math.radians(0), math.radians(180)),
    Part.LineSegment(App.Vector(63.5, -92.5, 0), App.Vector(63.5, -112.5, 0)),
], False)
sketch16.addConstraint([
    Sketcher.Constraint("Tangent", 0, 1, 1, 1),
    Sketcher.Constraint("Tangent", 1, 2, 2, 2),
    Sketcher.Constraint("Tangent", 2, 1, 3, 1),
    Sketcher.Constraint("Tangent", 3, 2, 0, 2),
    Sketcher.Constraint("Tangent", 4, 1, 5, 1),
    Sketcher.Constraint("Tangent", 5, 2, 6, 2),
    Sketcher.Constraint("Tangent", 6, 1, 7, 1),
    Sketcher.Constraint("Tangent", 7, 2, 4, 2),
    Sketcher.Constraint("Tangent", 8, 1, 9, 1),
    Sketcher.Constraint("Tangent", 9, 2, 10, 2),
    Sketcher.Constraint("Tangent", 10, 1, 11, 1),
    Sketcher.Constraint("Tangent", 11, 2, 8, 2),
    Sketcher.Constraint("Vertical", 1),
    Sketcher.Constraint("Vertical", 3),
    Sketcher.Constraint("Vertical", 5),
    Sketcher.Constraint("Vertical", 7),
    Sketcher.Constraint("Vertical", 9),
    Sketcher.Constraint("Vertical", 11),
    Sketcher.Constraint("Equal", 2, 4),
    Sketcher.Constraint("Equal", 6, 8),
    Sketcher.Constraint("Symmetric", 4, 3, 8, 3, -2),
    Sketcher.Constraint("PointOnObject", 0, 3, -2),
    Sketcher.Constraint("Horizontal", 6, 3, 10, 3),
    Sketcher.Constraint("Equal", 3, 5),
    Sketcher.Constraint("Radius", 0, Q("3.5 mm")),
    Sketcher.Constraint("DistanceY", 1, 2, 1, 1, Q("20 mm")),
    Sketcher.Constraint("DistanceX", 4, 3, -1, 1, Q("60 mm")),
    Sketcher.Constraint("DistanceY", 4, 3, 2, 3, Q("270 mm")),
    Sketcher.Constraint("DistanceY", -1, 1, 0, 3, Q("177.5 mm")),
])
pocket9 = body.newObject("PartDesign::Pocket", "Pocket008")
pocket9.Profile = sketch16
pocket9.Type = "ThroughAll"
pocket9.Reversed = True

doc.recompute()
